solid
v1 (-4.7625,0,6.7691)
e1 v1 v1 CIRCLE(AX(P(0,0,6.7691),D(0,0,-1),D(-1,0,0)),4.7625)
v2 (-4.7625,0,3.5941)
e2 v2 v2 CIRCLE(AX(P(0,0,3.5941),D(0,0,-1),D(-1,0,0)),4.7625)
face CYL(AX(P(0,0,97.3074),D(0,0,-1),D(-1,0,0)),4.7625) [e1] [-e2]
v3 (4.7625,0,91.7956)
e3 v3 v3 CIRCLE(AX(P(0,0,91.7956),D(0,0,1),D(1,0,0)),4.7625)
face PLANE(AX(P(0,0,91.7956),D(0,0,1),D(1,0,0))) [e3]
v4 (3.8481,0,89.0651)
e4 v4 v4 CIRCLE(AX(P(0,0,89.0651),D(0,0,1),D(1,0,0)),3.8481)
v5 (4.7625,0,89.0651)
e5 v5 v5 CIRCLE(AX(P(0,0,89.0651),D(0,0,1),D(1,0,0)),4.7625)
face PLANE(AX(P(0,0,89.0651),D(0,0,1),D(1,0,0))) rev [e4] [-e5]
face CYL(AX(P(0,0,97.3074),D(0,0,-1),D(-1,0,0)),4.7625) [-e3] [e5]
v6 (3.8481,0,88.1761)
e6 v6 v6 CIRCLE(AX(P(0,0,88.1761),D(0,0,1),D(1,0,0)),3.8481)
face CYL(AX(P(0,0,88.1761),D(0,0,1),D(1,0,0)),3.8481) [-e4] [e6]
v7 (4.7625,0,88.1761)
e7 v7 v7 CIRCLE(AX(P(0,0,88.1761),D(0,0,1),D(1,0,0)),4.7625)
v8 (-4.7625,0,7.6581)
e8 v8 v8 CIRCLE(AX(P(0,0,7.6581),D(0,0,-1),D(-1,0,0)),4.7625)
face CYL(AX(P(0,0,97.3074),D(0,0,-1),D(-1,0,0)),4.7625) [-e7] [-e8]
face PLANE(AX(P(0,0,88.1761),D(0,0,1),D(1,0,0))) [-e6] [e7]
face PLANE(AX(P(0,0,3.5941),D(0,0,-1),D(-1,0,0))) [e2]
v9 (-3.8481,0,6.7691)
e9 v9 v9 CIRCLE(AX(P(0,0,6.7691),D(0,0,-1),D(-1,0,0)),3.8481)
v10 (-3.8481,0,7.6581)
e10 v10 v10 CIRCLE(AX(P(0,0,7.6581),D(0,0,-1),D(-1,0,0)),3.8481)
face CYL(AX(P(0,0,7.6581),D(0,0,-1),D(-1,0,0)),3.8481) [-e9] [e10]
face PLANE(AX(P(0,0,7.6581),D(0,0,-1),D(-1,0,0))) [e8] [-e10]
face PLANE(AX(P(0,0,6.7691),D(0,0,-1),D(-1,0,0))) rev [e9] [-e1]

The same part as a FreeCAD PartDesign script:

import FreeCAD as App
import Part
import Sketcher
Q = App.Units.Quantity

doc = App.newDocument("Part")
params = doc.addObject("Spreadsheet::Sheet", "Params")
for row, (alias, value) in enumerate([
    ("sketch1_diameter", "0.375 in"),
    ("pad1_length", "3.831 in"),
    ("sketch2_diameter", "0.303 in"),
    ("pocket1_length", "0.035 in"),
    ("sketch3_diameter", "0.303 in"),
    ("pocket2_length", "0.035 in"),
    ("sketch4_diameter", "0.5 in"),
    ("pocket3_length", "0.217 in"),
    ("sketch5_diameter", "0.5 in"),
    ("pocket4_length", "0.1415 in"),
], start=1):
    params.set(f"A{row}", alias)
    params.set(f"B{row}", "=" + value)
    params.setAlias(f"B{row}", alias)

body = doc.addObject("PartDesign::Body", "Body")

sketch1 = body.newObject("Sketcher::SketchObject", "Sketch")
sketch1.AttachmentSupport = (doc.getObject("XY_Plane"), [""])
sketch1.MapMode = "FlatFace"
sketch1.addGeometry(Part.Circle(App.Vector(0, 0, 0), App.Vector(0, 0, 1), 4.8), False)
sketch1.addConstraint(Sketcher.Constraint("Coincident", 0, 3, -1, 1))
sketch1.addConstraint(Sketcher.Constraint("Diameter", 0, Q("0.375 in")))
sketch1.setExpression("Constraints[1]", "Params.sketch1_diameter")
pad1 = body.newObject("PartDesign::Pad", "Pad")
pad1.Profile = sketch1
pad1.setExpression("Length", "Params.pad1_length")

sketch2 = body.newObject("Sketcher::SketchObject", "Sketch001")
sketch2.AttachmentSupport = (doc.getObject("XY_Plane"), [""])
sketch2.MapMode = "FlatFace"
sketch2.AttachmentOffset = App.Placement(App.Vector(0, 0, 0.284 * 25.4), App.Rotation())
sketch2.addGeometry(Part.Circle(App.Vector(0, 0, 0), App.Vector(0, 0, 1), 9.1), False)
sketch2.addGeometry(Part.Circle(App.Vector(0, 0, 0), App.Vector(0, 0, 1), 3.8), False)
sketch2.addConstraint(Sketcher.Constraint("Coincident", 0, 3, -1, 1))
sketch2.addConstraint(Sketcher.Constraint("Coincident", 1, 3, -1, 1))
sketch2.addConstraint(Sketcher.Constraint("Diameter", 1, Q("0.303 in")))
sketch2.addConstraint(Sketcher.Constraint("Diameter", 0, Q("18.157781 mm")))
sketch2.setExpression("Constraints[2]", "Params.sketch2_diameter")
pocket1 = body.newObject("PartDesign::Pocket", "Pocket")
pocket1.Profile = sketch2
pocket1.setExpression("Length", "Params.pocket1_length")
pocket1.Midplane = True

sketch3 = body.newObject("Sketcher::SketchObject", "Sketch002")
sketch3.AttachmentSupport = (doc.getObject("XY_Plane"), [""])
sketch3.MapMode = "FlatFace"
sketch3.AttachmentOffset = App.Placement(App.Vector(0, 0, 3.489 * 25.4), App.Rotation())
sketch3.addGeometry(Part.Circle(App.Vector(0, 0, 0), App.Vector(0, 0, 1), 7.8), False)
sketch3.addGeometry(Part.Circle(App.Vector(0, 0, 0), App.Vector(0, 0, 1), 3.8), False)
sketch3.addConstraint(Sketcher.Constraint("Coincident", 0, 3, -1, 1))
sketch3.addConstraint(Sketcher.Constraint("Coincident", 1, 3, -1, 1))
sketch3.addConstraint(Sketcher.Constraint("Diameter", 1, Q("0.303 in")))
sketch3.addConstraint(Sketcher.Constraint("Diameter", 0, Q("15.533036 mm")))
sketch3.setExpression("Constraints[2]", "Params.sketch3_diameter")
pocket2 = body.newObject("PartDesign::Pocket", "Pocket001")
pocket2.Profile = sketch3
pocket2.setExpression("Length", "Params.pocket2_length")
pocket2.Midplane = True

sketch4 = body.newObject("Sketcher::SketchObject", "Sketch003")
sketch4.AttachmentSupport = (doc.getObject("XY_Plane"), [""])
sketch4.MapMode = "FlatFace"
sketch4.AttachmentOffset = App.Placement(App.Vector(0, 0, 3.831 * 25.4), App.Rotation())
sketch4.addGeometry(Part.Circle(App.Vector(0, 0, 0), App.Vector(0, 0, 1), 6), False)
sketch4.addConstraint(Sketcher.Constraint("Coincident", 0, 3, -1, 1))
sketch4.addConstraint(Sketcher.Constraint("Diameter", 0, Q("0.5 in")))
sketch4.setExpression("Constraints[1]", "Params.sketch4_diameter")
pocket3 = body.newObject("PartDesign::Pocket", "Pocket002")
pocket3.Profile = sketch4
pocket3.setExpression("Length", "Params.pocket3_length")

sketch5 = body.newObject("Sketcher::SketchObject", "Sketch004")
sketch5.AttachmentSupport = (doc.getObject("XY_Plane"), [""])
sketch5.MapMode = "FlatFace"
sketch5.addGeometry(Part.Circle(App.Vector(0, 0, 0), App.Vector(0, 0, 1), 6), False)
sketch5.addConstraint(Sketcher.Constraint("Coincident", 0, 3, -1, 1))
sketch5.addConstraint(Sketcher.Constraint("Diameter", 0, Q("0.5 in")))
sketch5.setExpression("Constraints[1]", "Params.sketch5_diameter")
pocket4 = body.newObject("PartDesign::Pocket", "Pocket003")
pocket4.Profile = sketch5
pocket4.setExpression("Length", "Params.pocket4_length")
pocket4.Reversed = True

doc.recompute()
